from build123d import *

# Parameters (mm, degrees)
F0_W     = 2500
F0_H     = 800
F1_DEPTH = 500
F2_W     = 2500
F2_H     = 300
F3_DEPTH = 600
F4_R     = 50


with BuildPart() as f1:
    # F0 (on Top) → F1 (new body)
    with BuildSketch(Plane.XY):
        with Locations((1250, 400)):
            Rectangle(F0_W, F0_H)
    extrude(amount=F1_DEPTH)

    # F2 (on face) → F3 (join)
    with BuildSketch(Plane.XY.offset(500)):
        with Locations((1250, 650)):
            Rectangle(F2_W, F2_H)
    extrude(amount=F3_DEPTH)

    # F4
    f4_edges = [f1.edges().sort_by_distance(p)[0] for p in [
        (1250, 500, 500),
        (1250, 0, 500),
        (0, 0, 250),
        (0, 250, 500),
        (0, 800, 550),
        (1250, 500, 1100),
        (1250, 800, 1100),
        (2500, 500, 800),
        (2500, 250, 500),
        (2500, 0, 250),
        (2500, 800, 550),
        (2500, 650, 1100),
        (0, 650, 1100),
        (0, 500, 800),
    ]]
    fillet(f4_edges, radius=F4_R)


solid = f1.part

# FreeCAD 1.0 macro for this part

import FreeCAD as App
import Part
import Sketcher


def edges_at(feature, points):
    """Names of the edges that pass closest to the given points."""
    edges = feature.Shape.Edges
    near = lambda p: min(range(len(edges)), key=lambda i: edges[i].distToShape(Part.Vertex(*p))[0])
    return sorted({f"Edge{near(p) + 1}" for p in points})

doc = App.newDocument("Part")
params = doc.addObject("Spreadsheet::Sheet", "Params")
for row, (alias, value) in enumerate([
    ("sketch1_width", "2500 mm"),
    ("sketch1_height", "800 mm"),
    ("pad1_length", "500 mm"),
    ("sketch2_width", "2500 mm"),
    ("sketch2_height", "300 mm"),
    ("pad2_length", "600 mm"),
    ("fillet_radius", "50 mm"),
], start=1):
    params.set(f"A{row}", alias)
    params.set(f"B{row}", "=" + value)
    params.setAlias(f"B{row}", alias)

body = doc.addObject("PartDesign::Body", "Body")

# Sketch on XY plane
sketch1 = doc.addObject("Sketcher::SketchObject", "Sketch")
body.addObject(sketch1)
sketch1.AttachmentSupport = (doc.XY_Plane, [""])
sketch1.MapMode = "FlatFace"
sketch1.addGeometry(Part.LineSegment(App.Vector(0, 800, 0), App.Vector(0, 0, 0)), False)
sketch1.addGeometry(Part.LineSegment(App.Vector(0, 0, 0), App.Vector(2500, 0, 0)), False)
sketch1.addGeometry(Part.LineSegment(App.Vector(2500, 0, 0), App.Vector(2500, 800, 0)), False)
sketch1.addGeometry(Part.LineSegment(App.Vector(2500, 800, 0), App.Vector(0, 800, 0)), False)
sketch1.addConstraint(Sketcher.Constraint("Coincident", 0, 2, 1, 1))
sketch1.addConstraint(Sketcher.Constraint("Coincident", 1, 2, 2, 1))
sketch1.addConstraint(Sketcher.Constraint("Coincident", 2, 2, 3, 1))
sketch1.addConstraint(Sketcher.Constraint("Coincident", 3, 2, 0, 1))
sketch1.addConstraint(Sketcher.Constraint("Vertical", 0))
sketch1.addConstraint(Sketcher.Constraint("Horizontal", 1))
sketch1.addConstraint(Sketcher.Constraint("Vertical", 2))
sketch1.addConstraint(Sketcher.Constraint("Horizontal", 3))
sketch1.addConstraint(Sketcher.Constraint("Coincident", 0, 2, -1, 1))
sketch1.addConstraint(Sketcher.Constraint("DistanceX", 1, 1, 1, 2, 2500.0))
sketch1.addConstraint(Sketcher.Constraint("DistanceY", 0, 2, 0, 1, 800.0))
sketch1.setExpression("Constraints[9]", "Params.sketch1_width")
sketch1.setExpression("Constraints[10]", "Params.sketch1_height")
pad1 = doc.addObject("PartDesign::Pad", "Pad")
body.addObject(pad1)
pad1.Profile = sketch1
pad1.setExpression("Length", "Params.pad1_length")

# Sketch on XY plane
sketch2 = doc.addObject("Sketcher::SketchObject", "Sketch001")
body.addObject(sketch2)
sketch2.AttachmentSupport = (doc.XY_Plane, [""])
sketch2.MapMode = "FlatFace"
sketch2.AttachmentOffset = App.Placement(App.Vector(0, 0, 500), App.Rotation())
sketch2.addGeometry(Part.LineSegment(App.Vector(0, 800, 0), App.Vector(0, 500, 0)), False)
sketch2.addGeometry(Part.LineSegment(App.Vector(0, 500, 0), App.Vector(2500, 500, 0)), False)
sketch2.addGeometry(Part.LineSegment(App.Vector(2500, 500, 0), App.Vector(2500, 800, 0)), False)
sketch2.addGeometry(Part.LineSegment(App.Vector(2500, 800, 0), App.Vector(0, 800, 0)), False)
sketch2.addConstraint(Sketcher.Constraint("Coincident", 0, 2, 1, 1))
sketch2.addConstraint(Sketcher.Constraint("Coincident", 1, 2, 2, 1))
sketch2.addConstraint(Sketcher.Constraint("Coincident", 2, 2, 3, 1))
sketch2.addConstraint(Sketcher.Constraint("Coincident", 3, 2, 0, 1))
sketch2.addConstraint(Sketcher.Constraint("Vertical", 0))
sketch2.addConstraint(Sketcher.Constraint("Horizontal", 1))
sketch2.addConstraint(Sketcher.Constraint("Vertical", 2))
sketch2.addConstraint(Sketcher.Constraint("Horizontal", 3))
sketch2.addConstraint(Sketcher.Constraint("PointOnObject", 0, 2, -2))
sketch2.addConstraint(Sketcher.Constraint("DistanceX", 1, 1, 1, 2, 2500.0))
sketch2.addConstraint(Sketcher.Constraint("DistanceY", 0, 2, 0, 1, 300.0))
sketch2.addConstraint(Sketcher.Constraint("DistanceY", -1, 1, 0, 2, 500.0))
sketch2.setExpression("Constraints[9]", "Params.sketch2_width")
sketch2.setExpression("Constraints[10]", "Params.sketch2_height")
pad2 = doc.addObject("PartDesign::Pad", "Pad001")
body.addObject(pad2)
pad2.Profile = sketch2
pad2.setExpression("Length", "Params.pad2_length")
doc.recompute()

fillet = doc.addObject("PartDesign::Fillet", "Fillet")
body.addObject(fillet)
fillet.Base = (pad2, edges_at(pad2, [
    (1250, 500, 500),
    (1250, 0, 500),
    (0, 0, 250),
    (0, 250, 500),
    (0, 800, 550),
    (1250, 500, 1100),
    (1250, 800, 1100),
    (2500, 500, 800),
    (2500, 250, 500),
    (2500, 0, 250),
    (2500, 800, 550),
    (2500, 650, 1100),
    (0, 650, 1100),
    (0, 500, 800),
]))
fillet.setExpression("Radius", "Params.fillet_radius")

doc.recompute()
